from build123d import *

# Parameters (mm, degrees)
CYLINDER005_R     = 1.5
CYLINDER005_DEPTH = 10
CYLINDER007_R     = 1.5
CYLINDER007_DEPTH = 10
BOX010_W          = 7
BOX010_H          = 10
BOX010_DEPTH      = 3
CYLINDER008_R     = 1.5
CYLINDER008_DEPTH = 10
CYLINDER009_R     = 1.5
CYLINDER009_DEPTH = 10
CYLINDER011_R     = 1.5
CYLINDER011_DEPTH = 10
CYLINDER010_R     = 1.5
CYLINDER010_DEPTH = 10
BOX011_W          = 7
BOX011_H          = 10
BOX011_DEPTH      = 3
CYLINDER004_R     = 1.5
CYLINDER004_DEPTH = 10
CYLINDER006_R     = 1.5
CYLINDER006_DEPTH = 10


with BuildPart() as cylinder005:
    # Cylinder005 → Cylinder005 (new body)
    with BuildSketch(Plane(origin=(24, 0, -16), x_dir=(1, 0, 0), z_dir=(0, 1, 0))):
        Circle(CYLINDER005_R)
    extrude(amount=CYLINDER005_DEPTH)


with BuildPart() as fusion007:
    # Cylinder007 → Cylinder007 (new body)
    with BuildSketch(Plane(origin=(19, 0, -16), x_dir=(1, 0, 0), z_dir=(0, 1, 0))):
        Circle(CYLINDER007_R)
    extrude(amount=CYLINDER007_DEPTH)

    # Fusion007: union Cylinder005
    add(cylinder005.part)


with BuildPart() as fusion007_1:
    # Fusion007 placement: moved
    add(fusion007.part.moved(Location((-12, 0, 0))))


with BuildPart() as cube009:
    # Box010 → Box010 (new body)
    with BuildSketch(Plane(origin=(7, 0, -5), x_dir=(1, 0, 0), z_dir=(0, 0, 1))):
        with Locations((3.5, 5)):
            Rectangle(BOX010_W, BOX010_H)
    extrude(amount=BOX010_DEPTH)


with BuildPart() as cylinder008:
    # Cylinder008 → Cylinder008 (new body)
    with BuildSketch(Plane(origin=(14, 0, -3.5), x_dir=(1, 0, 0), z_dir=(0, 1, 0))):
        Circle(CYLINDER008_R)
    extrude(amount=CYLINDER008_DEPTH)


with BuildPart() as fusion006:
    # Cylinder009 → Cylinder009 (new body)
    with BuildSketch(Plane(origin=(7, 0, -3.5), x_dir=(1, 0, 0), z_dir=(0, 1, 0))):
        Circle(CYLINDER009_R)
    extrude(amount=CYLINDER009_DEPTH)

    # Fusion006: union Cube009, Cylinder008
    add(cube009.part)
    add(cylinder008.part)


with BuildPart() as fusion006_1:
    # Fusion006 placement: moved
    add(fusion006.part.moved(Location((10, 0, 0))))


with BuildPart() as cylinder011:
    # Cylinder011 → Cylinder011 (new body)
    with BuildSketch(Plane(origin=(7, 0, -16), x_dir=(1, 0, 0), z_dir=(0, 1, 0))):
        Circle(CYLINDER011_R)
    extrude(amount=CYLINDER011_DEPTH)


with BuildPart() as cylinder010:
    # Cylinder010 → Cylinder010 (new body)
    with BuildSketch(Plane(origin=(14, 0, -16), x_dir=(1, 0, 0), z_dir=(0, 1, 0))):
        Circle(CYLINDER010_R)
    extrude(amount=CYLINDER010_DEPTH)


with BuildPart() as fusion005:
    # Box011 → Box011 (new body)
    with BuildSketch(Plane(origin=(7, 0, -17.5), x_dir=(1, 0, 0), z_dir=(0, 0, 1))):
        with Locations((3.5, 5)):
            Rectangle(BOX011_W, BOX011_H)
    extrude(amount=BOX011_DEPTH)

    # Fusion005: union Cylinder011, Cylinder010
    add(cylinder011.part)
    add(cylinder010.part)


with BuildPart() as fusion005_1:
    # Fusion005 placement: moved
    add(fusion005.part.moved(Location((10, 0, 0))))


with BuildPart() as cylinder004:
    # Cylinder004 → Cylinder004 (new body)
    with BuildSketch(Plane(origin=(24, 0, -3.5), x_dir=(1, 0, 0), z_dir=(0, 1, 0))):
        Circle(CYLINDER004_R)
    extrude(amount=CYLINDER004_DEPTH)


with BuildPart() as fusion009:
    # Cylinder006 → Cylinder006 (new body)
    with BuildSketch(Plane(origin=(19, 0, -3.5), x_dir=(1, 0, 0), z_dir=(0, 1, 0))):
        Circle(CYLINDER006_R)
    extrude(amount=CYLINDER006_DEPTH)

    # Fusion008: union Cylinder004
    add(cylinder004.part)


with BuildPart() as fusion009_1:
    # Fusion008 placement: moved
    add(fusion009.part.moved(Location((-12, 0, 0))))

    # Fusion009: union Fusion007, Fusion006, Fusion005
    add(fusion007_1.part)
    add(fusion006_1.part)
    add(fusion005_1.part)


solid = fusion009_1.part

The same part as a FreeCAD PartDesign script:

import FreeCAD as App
import Part
import Sketcher

V = App.Vector
Q = App.Units.Quantity

doc = App.newDocument("Part")
body = doc.addObject("PartDesign::Body", "Body")

# Sketch on XZ plane
sketch1 = doc.addObject("Sketcher::SketchObject", "Sketch")
body.addObject(sketch1)
sketch1.AttachmentSupport = (doc.XZ_Plane, [""])
sketch1.MapMode = "FlatFace"
sketch1.addGeometry(Part.Circle(V(24, -16, 0), V(0, 0, 1), 1.5), False)
sketch1.addConstraint([
    Sketcher.Constraint("Diameter", 0, Q("3 mm")),
    Sketcher.Constraint("DistanceX", -1, 1, 0, 3, Q("24 mm")),
    Sketcher.Constraint("DistanceY", 0, 3, -1, 1, Q("16 mm")),
])
pad1 = doc.addObject("PartDesign::Pad", "Pad")
body.addObject(pad1)
pad1.Profile = sketch1
pad1.Length = 10
pad1.Reversed = True
body2 = doc.addObject("PartDesign::Body", "Body001")
body2.AllowCompound = True

# Sketch on XZ plane
sketch2 = doc.addObject("Sketcher::SketchObject", "Sketch001")
body2.addObject(sketch2)
sketch2.AttachmentSupport = (doc.getObject("XZ_Plane001"), [""])
sketch2.MapMode = "FlatFace"
sketch2.addGeometry(Part.Circle(V(19, -16, 0), V(0, 0, 1), 1.5), False)
sketch2.addConstraint([
    Sketcher.Constraint("Diameter", 0, Q("3 mm")),
    Sketcher.Constraint("DistanceX", -1, 1, 0, 3, Q("19 mm")),
    Sketcher.Constraint("DistanceY", 0, 3, -1, 1, Q("16 mm")),
])
pad2 = doc.addObject("PartDesign::Pad", "Pad001")
body2.addObject(pad2)
pad2.Profile = sketch2
pad2.Length = 10
pad2.Reversed = True
doc.recompute()

boolean = doc.addObject("PartDesign::Boolean", "Boolean")
body2.addObject(boolean)
boolean.Type = "Fuse"
boolean.addObjects([body])
body3 = doc.addObject("PartDesign::Body", "Body002")
body3.AllowCompound = True
doc.recompute()

body2.Placement = App.Placement(V(-12, 0, 0), App.Rotation(V(0, 0, 1), 0))
boolean2 = doc.addObject("PartDesign::Boolean", "Boolean001")
body3.addObject(boolean2)
boolean2.Type = "Fuse"
boolean2.addObjects([body2])
body4 = doc.addObject("PartDesign::Body", "Body003")

# Sketch on XY plane
sketch3 = doc.addObject("Sketcher::SketchObject", "Sketch002")
body4.addObject(sketch3)
sketch3.AttachmentSupport = (doc.getObject("XY_Plane003"), [""])
sketch3.MapMode = "FlatFace"
sketch3.AttachmentOffset = App.Placement(V(0, 0, -5), App.Rotation())
sketch3.addGeometry([
    Part.LineSegment(V(7, 10, 0), V(7, 0, 0)),
    Part.LineSegment(V(7, 0, 0), V(14, 0, 0)),
    Part.LineSegment(V(14, 0, 0), V(14, 10, 0)),
    Part.LineSegment(V(14, 10, 0), V(7, 10, 0)),
], False)
sketch3.addConstraint([
    Sketcher.Constraint("Coincident", 0, 2, 1, 1),
    Sketcher.Constraint("Coincident", 1, 2, 2, 1),
    Sketcher.Constraint("Coincident", 2, 2, 3, 1),
    Sketcher.Constraint("Coincident", 3, 2, 0, 1),
    Sketcher.Constraint("Vertical", 0),
    Sketcher.Constraint("Horizontal", 1),
    Sketcher.Constraint("Vertical", 2),
    Sketcher.Constraint("Horizontal", 3),
    Sketcher.Constraint("PointOnObject", 0, 2, -1),
    Sketcher.Constraint("DistanceX", 1, 1, 1, 2, Q("7 mm")),
    Sketcher.Constraint("DistanceY", 0, 2, 0, 1, Q("10 mm")),
    Sketcher.Constraint("DistanceX", -1, 1, 0, 2, Q("7 mm")),
])
pad3 = doc.addObject("PartDesign::Pad", "Pad002")
body4.addObject(pad3)
pad3.Profile = sketch3
pad3.Length = 3
body5 = doc.addObject("PartDesign::Body", "Body004")

# Sketch on XZ plane
sketch4 = doc.addObject("Sketcher::SketchObject", "Sketch003")
body5.addObject(sketch4)
sketch4.AttachmentSupport = (doc.getObject("XZ_Plane004"), [""])
sketch4.MapMode = "FlatFace"
sketch4.addGeometry(Part.Circle(V(14, -3.5, 0), V(0, 0, 1), 1.5), False)
sketch4.addConstraint([
    Sketcher.Constraint("Diameter", 0, Q("3 mm")),
    Sketcher.Constraint("DistanceX", -1, 1, 0, 3, Q("14 mm")),
    Sketcher.Constraint("DistanceY", 0, 3, -1, 1, Q("3.5 mm")),
])
pad4 = doc.addObject("PartDesign::Pad", "Pad003")
body5.addObject(pad4)
pad4.Profile = sketch4
pad4.Length = 10
pad4.Reversed = True
body6 = doc.addObject("PartDesign::Body", "Body005")

# Sketch on XZ plane
sketch5 = doc.addObject("Sketcher::SketchObject", "Sketch004")
body6.addObject(sketch5)
sketch5.AttachmentSupport = (doc.getObject("XZ_Plane005"), [""])
sketch5.MapMode = "FlatFace"
sketch5.addGeometry(Part.Circle(V(7, -3.5, 0), V(0, 0, 1), 1.5), False)
sketch5.addConstraint([
    Sketcher.Constraint("Diameter", 0, Q("3 mm")),
    Sketcher.Constraint("DistanceX", -1, 1, 0, 3, Q("7 mm")),
    Sketcher.Constraint("DistanceY", 0, 3, -1, 1, Q("3.5 mm")),
])
pad5 = doc.addObject("PartDesign::Pad", "Pad004")
body6.addObject(pad5)
pad5.Profile = sketch5
pad5.Length = 10
pad5.Reversed = True
doc.recompute()

boolean3 = doc.addObject("PartDesign::Boolean", "Boolean002")
body6.addObject(boolean3)
boolean3.Type = "Fuse"
boolean3.addObjects([body4])
doc.recompute()

boolean4 = doc.addObject("PartDesign::Boolean", "Boolean003")
body6.addObject(boolean4)
boolean4.Type = "Fuse"
boolean4.addObjects([body5])
body7 = doc.addObject("PartDesign::Body", "Body006")
doc.recompute()

body6.Placement = App.Placement(V(10, 0, 0), App.Rotation(V(0, 0, 1), 0))
boolean5 = doc.addObject("PartDesign::Boolean", "Boolean004")
body7.addObject(boolean5)
boolean5.Type = "Fuse"
boolean5.addObjects([body6])
body8 = doc.addObject("PartDesign::Body", "Body007")

# Sketch on XZ plane
sketch6 = doc.addObject("Sketcher::SketchObject", "Sketch005")
body8.addObject(sketch6)
sketch6.AttachmentSupport = (doc.getObject("XZ_Plane007"), [""])
sketch6.MapMode = "FlatFace"
sketch6.addGeometry(Part.Circle(V(7, -16, 0), V(0, 0, 1), 1.5), False)
sketch6.addConstraint([
    Sketcher.Constraint("Diameter", 0, Q("3 mm")),
    Sketcher.Constraint("DistanceX", -1, 1, 0, 3, Q("7 mm")),
    Sketcher.Constraint("DistanceY", 0, 3, -1, 1, Q("16 mm")),
])
pad6 = doc.addObject("PartDesign::Pad", "Pad005")
body8.addObject(pad6)
pad6.Profile = sketch6
pad6.Length = 10
pad6.Reversed = True
body9 = doc.addObject("PartDesign::Body", "Body008")

# Sketch on XZ plane
sketch7 = doc.addObject("Sketcher::SketchObject", "Sketch006")
body9.addObject(sketch7)
sketch7.AttachmentSupport = (doc.getObject("XZ_Plane008"), [""])
sketch7.MapMode = "FlatFace"
sketch7.addGeometry(Part.Circle(V(14, -16, 0), V(0, 0, 1), 1.5), False)
sketch7.addConstraint([
    Sketcher.Constraint("Diameter", 0, Q("3 mm")),
    Sketcher.Constraint("DistanceX", -1, 1, 0, 3, Q("14 mm")),
    Sketcher.Constraint("DistanceY", 0, 3, -1, 1, Q("16 mm")),
])
pad7 = doc.addObject("PartDesign::Pad", "Pad006")
body9.addObject(pad7)
pad7.Profile = sketch7
pad7.Length = 10
pad7.Reversed = True
body10 = doc.addObject("PartDesign::Body", "Body009")

# Sketch on XY plane
sketch8 = doc.addObject("Sketcher::SketchObject", "Sketch007")
body10.addObject(sketch8)
sketch8.AttachmentSupport = (doc.getObject("XY_Plane009"), [""])
sketch8.MapMode = "FlatFace"
sketch8.AttachmentOffset = App.Placement(V(0, 0, -17.5), App.Rotation())
sketch8.addGeometry([
    Part.LineSegment(V(7, 10, 0), V(7, 0, 0)),
    Part.LineSegment(V(7, 0, 0), V(14, 0, 0)),
    Part.LineSegment(V(14, 0, 0), V(14, 10, 0)),
    Part.LineSegment(V(14, 10, 0), V(7, 10, 0)),
], False)
sketch8.addConstraint([
    Sketcher.Constraint("Coincident", 0, 2, 1, 1),
    Sketcher.Constraint("Coincident", 1, 2, 2, 1),
    Sketcher.Constraint("Coincident", 2, 2, 3, 1),
    Sketcher.Constraint("Coincident", 3, 2, 0, 1),
    Sketcher.Constraint("Vertical", 0),
    Sketcher.Constraint("Horizontal", 1),
    Sketcher.Constraint("Vertical", 2),
    Sketcher.Constraint("Horizontal", 3),
    Sketcher.Constraint("PointOnObject", 0, 2, -1),
    Sketcher.Constraint("DistanceX", 1, 1, 1, 2, Q("7 mm")),
    Sketcher.Constraint("DistanceY", 0, 2, 0, 1, Q("10 mm")),
    Sketcher.Constraint("DistanceX", -1, 1, 0, 2, Q("7 mm")),
])
pad8 = doc.addObject("PartDesign::Pad", "Pad007")
body10.addObject(pad8)
pad8.Profile = sketch8
pad8.Length = 3
doc.recompute()

boolean6 = doc.addObject("PartDesign::Boolean", "Boolean005")
body10.addObject(boolean6)
boolean6.Type = "Fuse"
boolean6.addObjects([body8])
doc.recompute()

boolean7 = doc.addObject("PartDesign::Boolean", "Boolean006")
body10.addObject(boolean7)
boolean7.Type = "Fuse"
boolean7.addObjects([body9])
body11 = doc.addObject("PartDesign::Body", "Body010")
doc.recompute()

body10.Placement = App.Placement(V(10, 0, 0), App.Rotation(V(0, 0, 1), 0))
boolean8 = doc.addObject("PartDesign::Boolean", "Boolean007")
body11.addObject(boolean8)
boolean8.Type = "Fuse"
boolean8.addObjects([body10])
body12 = doc.addObject("PartDesign::Body", "Body011")

# Sketch on XZ plane
sketch9 = doc.addObject("Sketcher::SketchObject", "Sketch008")
body12.addObject(sketch9)
sketch9.AttachmentSupport = (doc.getObject("XZ_Plane011"), [""])
sketch9.MapMode = "FlatFace"
sketch9.addGeometry(Part.Circle(V(24, -3.5, 0), V(0, 0, 1), 1.5), False)
sketch9.addConstraint([
    Sketcher.Constraint("Diameter", 0, Q("3 mm")),
    Sketcher.Constraint("DistanceX", -1, 1, 0, 3, Q("24 mm")),
    Sketcher.Constraint("DistanceY", 0, 3, -1, 1, Q("3.5 mm")),
])
pad9 = doc.addObject("PartDesign::Pad", "Pad008")
body12.addObject(pad9)
pad9.Profile = sketch9
pad9.Length = 10
pad9.Reversed = True
body13 = doc.addObject("PartDesign::Body", "Body012")
body13.AllowCompound = True

# Sketch on XZ plane
sketch10 = doc.addObject("Sketcher::SketchObject", "Sketch009")
body13.addObject(sketch10)
sketch10.AttachmentSupport = (doc.getObject("XZ_Plane012"), [""])
sketch10.MapMode = "FlatFace"
sketch10.addGeometry(Part.Circle(V(19, -3.5, 0), V(0, 0, 1), 1.5), False)
sketch10.addConstraint([
    Sketcher.Constraint("Diameter", 0, Q("3 mm")),
    Sketcher.Constraint("DistanceX", -1, 1, 0, 3, Q("19 mm")),
    Sketcher.Constraint("DistanceY", 0, 3, -1, 1, Q("3.5 mm")),
])
pad10 = doc.addObject("PartDesign::Pad", "Pad009")
body13.addObject(pad10)
pad10.Profile = sketch10
pad10.Length = 10
pad10.Reversed = True
doc.recompute()

boolean9 = doc.addObject("PartDesign::Boolean", "Boolean008")
body13.addObject(boolean9)
boolean9.Type = "Fuse"
boolean9.addObjects([body12])
body14 = doc.addObject("PartDesign::Body", "Body013")
body14.AllowCompound = True
doc.recompute()

body13.Placement = App.Placement(V(-12, 0, 0), App.Rotation(V(0, 0, 1), 0))
boolean10 = doc.addObject("PartDesign::Boolean", "Boolean009")
body14.addObject(boolean10)
boolean10.Type = "Fuse"
boolean10.addObjects([body13])
doc.recompute()

boolean11 = doc.addObject("PartDesign::Boolean", "Boolean010")
body14.addObject(boolean11)
boolean11.Type = "Fuse"
boolean11.addObjects([body3])
doc.recompute()

boolean12 = doc.addObject("PartDesign::Boolean", "Boolean011")
body14.addObject(boolean12)
boolean12.Type = "Fuse"
boolean12.addObjects([body7])
doc.recompute()

boolean13 = doc.addObject("PartDesign::Boolean", "Boolean012")
body14.addObject(boolean13)
boolean13.Type = "Fuse"
boolean13.addObjects([body11])

doc.recompute()
